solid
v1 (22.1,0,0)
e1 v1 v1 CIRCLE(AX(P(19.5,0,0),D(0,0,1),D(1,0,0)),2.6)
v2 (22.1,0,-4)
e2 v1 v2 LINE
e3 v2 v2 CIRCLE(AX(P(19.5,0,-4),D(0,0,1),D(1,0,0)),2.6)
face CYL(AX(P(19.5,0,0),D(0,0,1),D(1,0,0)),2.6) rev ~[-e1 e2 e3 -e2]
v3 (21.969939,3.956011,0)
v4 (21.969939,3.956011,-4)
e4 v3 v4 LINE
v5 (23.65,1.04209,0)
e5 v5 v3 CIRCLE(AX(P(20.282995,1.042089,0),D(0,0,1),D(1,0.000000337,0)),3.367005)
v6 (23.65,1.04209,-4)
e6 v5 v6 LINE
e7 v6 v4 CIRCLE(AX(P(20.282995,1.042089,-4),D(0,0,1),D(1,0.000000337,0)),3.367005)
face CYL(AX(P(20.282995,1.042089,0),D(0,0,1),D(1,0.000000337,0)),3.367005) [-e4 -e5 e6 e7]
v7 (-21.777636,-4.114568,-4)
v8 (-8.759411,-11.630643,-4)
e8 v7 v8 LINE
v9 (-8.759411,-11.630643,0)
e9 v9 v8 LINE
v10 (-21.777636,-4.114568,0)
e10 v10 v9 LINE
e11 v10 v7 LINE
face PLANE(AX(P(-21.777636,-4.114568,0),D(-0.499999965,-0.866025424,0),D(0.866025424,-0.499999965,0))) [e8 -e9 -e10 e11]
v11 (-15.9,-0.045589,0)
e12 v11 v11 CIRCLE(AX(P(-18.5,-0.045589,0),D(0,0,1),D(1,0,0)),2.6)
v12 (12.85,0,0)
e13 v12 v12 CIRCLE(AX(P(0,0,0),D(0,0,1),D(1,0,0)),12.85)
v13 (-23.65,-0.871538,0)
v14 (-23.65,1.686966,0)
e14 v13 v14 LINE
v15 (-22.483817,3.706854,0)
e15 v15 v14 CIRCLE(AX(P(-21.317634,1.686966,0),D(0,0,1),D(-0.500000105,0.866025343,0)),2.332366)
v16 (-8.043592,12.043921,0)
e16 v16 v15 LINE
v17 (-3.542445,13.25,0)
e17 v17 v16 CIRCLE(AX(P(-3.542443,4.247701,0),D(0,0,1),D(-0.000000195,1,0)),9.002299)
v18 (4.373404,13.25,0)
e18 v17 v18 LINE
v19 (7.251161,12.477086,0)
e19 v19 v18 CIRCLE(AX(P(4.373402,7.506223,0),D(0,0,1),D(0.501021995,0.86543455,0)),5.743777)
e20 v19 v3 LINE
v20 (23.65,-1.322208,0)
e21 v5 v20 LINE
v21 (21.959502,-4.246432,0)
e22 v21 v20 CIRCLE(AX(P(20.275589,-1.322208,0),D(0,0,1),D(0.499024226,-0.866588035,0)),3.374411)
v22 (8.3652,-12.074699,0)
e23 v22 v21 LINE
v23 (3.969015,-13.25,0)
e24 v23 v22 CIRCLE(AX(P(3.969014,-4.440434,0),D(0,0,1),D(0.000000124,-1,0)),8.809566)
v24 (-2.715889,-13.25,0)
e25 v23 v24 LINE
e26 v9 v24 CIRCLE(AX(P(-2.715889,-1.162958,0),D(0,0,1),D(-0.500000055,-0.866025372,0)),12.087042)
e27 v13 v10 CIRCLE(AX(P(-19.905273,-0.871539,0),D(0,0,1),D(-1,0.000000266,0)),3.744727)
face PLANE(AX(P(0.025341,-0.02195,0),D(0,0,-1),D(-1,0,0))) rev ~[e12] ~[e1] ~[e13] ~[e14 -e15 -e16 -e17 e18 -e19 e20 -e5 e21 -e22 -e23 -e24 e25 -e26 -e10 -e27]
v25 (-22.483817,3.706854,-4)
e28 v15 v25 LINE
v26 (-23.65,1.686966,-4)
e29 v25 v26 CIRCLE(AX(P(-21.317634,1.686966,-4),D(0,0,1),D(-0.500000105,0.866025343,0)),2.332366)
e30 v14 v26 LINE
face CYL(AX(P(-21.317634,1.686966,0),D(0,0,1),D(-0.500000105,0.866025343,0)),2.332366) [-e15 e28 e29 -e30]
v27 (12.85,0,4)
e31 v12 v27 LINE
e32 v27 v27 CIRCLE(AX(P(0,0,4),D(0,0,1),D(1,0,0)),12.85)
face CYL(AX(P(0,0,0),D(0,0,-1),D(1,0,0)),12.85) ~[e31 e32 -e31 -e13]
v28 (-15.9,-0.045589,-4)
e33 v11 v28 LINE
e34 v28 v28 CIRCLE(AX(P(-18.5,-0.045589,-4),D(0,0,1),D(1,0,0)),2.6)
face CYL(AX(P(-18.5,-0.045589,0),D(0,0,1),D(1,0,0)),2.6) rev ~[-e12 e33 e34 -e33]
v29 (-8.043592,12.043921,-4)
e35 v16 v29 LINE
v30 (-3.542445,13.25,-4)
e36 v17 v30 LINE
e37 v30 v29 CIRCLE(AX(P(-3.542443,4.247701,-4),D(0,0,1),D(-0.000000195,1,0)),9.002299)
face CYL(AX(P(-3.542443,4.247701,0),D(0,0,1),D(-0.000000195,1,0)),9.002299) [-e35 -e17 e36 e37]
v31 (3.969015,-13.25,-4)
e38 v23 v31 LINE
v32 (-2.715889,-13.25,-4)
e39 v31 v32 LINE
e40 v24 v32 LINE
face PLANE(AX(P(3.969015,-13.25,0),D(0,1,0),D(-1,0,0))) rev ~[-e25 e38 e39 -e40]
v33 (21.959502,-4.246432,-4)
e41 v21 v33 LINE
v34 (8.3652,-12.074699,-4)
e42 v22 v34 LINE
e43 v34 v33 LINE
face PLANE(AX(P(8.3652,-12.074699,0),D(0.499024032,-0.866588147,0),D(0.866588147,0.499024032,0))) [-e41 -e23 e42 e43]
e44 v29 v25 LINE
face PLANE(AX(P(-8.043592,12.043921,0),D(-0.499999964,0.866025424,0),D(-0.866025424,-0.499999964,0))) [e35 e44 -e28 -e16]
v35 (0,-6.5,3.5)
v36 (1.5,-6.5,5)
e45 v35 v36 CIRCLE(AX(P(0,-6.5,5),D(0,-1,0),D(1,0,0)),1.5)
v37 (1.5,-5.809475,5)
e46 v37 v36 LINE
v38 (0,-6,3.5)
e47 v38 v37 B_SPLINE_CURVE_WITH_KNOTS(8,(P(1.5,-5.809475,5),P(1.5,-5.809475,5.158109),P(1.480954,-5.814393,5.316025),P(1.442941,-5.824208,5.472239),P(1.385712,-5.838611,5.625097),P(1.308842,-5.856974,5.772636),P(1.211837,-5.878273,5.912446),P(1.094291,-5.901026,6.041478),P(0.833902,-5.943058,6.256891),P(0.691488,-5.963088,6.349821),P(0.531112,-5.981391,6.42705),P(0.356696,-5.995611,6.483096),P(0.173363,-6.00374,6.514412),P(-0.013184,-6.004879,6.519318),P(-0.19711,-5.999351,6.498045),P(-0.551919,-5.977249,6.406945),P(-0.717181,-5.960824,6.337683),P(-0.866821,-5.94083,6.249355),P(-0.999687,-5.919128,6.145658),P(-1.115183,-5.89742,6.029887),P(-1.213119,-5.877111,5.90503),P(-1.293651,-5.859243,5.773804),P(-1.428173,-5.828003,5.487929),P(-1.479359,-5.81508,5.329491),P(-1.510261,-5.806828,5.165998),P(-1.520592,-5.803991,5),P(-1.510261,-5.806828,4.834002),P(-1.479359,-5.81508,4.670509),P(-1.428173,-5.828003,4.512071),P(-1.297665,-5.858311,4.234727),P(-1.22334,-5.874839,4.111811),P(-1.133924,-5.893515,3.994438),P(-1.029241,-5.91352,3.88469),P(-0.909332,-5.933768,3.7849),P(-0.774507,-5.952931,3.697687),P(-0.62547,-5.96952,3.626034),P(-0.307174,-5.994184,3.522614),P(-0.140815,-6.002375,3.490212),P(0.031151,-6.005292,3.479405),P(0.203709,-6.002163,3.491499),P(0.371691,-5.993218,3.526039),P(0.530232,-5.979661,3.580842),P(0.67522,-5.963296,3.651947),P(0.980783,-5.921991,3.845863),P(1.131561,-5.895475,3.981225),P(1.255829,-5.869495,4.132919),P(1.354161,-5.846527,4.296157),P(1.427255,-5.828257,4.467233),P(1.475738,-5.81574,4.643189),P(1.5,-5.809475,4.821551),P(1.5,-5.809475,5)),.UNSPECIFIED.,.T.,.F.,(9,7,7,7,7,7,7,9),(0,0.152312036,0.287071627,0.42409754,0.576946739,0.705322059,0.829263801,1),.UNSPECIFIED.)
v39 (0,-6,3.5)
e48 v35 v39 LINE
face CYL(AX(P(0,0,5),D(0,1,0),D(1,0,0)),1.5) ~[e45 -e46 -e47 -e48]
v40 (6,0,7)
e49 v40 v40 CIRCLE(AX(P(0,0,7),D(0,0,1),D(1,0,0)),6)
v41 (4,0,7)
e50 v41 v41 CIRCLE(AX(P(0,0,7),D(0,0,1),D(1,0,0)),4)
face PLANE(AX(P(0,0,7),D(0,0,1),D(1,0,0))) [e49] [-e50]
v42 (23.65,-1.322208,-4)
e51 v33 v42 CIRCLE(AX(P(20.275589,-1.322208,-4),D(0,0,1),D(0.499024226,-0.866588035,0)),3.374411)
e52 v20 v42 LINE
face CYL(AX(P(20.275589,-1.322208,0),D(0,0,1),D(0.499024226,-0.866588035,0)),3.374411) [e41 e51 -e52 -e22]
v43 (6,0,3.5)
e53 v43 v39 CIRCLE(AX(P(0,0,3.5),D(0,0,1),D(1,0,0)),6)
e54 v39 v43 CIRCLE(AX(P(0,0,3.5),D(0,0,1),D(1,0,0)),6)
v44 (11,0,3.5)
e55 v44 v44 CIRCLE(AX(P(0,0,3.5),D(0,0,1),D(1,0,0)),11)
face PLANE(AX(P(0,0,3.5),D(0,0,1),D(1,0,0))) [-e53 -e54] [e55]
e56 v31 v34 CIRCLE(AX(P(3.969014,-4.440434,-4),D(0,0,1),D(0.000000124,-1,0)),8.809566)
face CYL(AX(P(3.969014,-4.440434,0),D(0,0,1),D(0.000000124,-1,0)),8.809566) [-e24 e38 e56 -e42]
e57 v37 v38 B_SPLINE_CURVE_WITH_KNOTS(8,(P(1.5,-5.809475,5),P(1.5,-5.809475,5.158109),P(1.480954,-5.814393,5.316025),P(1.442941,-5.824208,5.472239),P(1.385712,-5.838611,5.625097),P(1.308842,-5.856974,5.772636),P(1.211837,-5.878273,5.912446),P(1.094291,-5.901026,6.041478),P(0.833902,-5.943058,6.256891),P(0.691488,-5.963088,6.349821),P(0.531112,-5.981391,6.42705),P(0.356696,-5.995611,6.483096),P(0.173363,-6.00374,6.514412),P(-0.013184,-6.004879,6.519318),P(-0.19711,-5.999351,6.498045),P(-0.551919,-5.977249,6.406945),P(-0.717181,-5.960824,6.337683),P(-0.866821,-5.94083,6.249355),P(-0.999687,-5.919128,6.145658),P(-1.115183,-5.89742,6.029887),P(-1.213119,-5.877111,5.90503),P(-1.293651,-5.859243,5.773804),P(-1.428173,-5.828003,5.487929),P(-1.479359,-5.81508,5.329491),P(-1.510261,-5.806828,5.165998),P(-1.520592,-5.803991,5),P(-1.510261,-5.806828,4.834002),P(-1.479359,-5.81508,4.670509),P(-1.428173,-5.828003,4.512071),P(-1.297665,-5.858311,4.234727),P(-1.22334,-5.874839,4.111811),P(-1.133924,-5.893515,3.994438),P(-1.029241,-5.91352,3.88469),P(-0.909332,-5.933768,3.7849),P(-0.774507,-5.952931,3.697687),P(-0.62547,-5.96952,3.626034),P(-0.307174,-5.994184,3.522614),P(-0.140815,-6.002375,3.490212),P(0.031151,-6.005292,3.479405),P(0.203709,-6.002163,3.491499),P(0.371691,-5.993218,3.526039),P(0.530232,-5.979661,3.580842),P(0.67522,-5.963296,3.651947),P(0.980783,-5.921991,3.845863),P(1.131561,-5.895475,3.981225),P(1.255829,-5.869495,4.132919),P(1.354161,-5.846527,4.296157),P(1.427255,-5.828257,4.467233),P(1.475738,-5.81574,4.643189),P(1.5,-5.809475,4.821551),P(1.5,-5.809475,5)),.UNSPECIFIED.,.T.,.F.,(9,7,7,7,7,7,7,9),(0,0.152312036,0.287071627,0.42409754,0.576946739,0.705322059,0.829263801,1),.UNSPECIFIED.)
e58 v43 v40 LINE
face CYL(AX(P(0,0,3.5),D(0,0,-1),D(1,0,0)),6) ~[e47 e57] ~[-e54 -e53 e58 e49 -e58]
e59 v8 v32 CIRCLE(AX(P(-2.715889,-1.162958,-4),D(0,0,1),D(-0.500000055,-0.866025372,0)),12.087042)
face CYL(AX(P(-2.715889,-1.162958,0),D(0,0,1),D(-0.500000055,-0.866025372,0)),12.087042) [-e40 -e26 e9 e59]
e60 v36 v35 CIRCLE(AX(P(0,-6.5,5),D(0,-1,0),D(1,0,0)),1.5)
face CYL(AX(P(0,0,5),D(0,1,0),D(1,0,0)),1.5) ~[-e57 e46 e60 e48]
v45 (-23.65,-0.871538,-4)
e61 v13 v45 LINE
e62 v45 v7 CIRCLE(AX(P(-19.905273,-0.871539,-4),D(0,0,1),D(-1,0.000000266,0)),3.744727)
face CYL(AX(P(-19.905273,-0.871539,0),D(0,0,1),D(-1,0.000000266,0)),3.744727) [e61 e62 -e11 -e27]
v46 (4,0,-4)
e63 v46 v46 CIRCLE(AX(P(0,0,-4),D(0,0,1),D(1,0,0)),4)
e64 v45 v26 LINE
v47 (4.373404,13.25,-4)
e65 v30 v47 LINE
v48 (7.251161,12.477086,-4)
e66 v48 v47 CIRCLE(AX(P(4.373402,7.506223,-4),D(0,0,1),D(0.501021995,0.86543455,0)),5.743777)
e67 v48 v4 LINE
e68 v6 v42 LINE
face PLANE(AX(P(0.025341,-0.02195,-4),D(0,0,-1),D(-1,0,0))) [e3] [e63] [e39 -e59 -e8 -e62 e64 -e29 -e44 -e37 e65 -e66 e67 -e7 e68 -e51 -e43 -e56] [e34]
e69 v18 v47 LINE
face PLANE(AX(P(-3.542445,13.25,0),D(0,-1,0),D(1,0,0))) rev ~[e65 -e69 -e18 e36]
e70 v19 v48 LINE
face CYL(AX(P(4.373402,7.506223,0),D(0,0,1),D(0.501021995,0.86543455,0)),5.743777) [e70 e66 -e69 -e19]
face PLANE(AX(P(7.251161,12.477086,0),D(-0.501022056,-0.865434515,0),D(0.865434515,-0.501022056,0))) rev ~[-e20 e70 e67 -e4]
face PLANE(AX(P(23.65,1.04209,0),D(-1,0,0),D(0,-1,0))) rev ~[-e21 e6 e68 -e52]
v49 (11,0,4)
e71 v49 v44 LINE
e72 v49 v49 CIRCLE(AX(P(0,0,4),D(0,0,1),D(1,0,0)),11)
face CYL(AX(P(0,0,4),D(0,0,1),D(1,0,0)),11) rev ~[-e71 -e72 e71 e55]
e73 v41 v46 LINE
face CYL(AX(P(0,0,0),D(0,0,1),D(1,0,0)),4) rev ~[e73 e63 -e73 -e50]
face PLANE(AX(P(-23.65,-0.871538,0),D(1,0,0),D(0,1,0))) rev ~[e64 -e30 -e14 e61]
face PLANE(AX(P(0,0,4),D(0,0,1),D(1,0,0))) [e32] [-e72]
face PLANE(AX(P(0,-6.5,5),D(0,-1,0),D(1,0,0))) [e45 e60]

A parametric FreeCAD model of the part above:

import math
import FreeCAD as App
import Part
import Sketcher

V = App.Vector
Q = App.Units.Quantity

doc = App.newDocument("Part")
body = doc.addObject("PartDesign::Body", "Body")

# Sketch on XY plane
sketch1 = body.newObject("Sketcher::SketchObject", "Sketch")
sketch1.AttachmentSupport = (doc.getObject("XY_Plane"), [""])
sketch1.MapMode = "FlatFace"
sketch1.addGeometry(Part.Circle(V(0, 0, 0), V(0, 0, 1), 13), False)
sketch1.addConstraint(Sketcher.Constraint("Coincident", 0, 3, -1, 1))
sketch1.addConstraint(Sketcher.Constraint("Diameter", 0, Q("25.7 mm")))
pad1 = body.newObject("PartDesign::Pad", "Pad")
pad1.Profile = sketch1
pad1.Length = 4

# Sketch on XY plane
sketch2 = body.newObject("Sketcher::SketchObject", "Sketch001")
sketch2.AttachmentSupport = (doc.getObject("XY_Plane"), [""])
sketch2.MapMode = "FlatFace"
sketch2.AttachmentOffset = App.Placement(V(0, 0, 4), App.Rotation())
sketch2.addGeometry(Part.Circle(V(0, 0, 0), V(0, 0, 1), 11), False)
sketch2.addConstraint(Sketcher.Constraint("Coincident", 0, 3, -1, 1))
sketch2.addConstraint(Sketcher.Constraint("Diameter", 0, Q("22 mm")))
pocket1 = body.newObject("PartDesign::Pocket", "Pocket")
pocket1.Profile = sketch2
pocket1.Length = 0.5

# Sketch on XY plane
sketch3 = body.newObject("Sketcher::SketchObject", "Sketch002")
sketch3.AttachmentSupport = (doc.getObject("XY_Plane"), [""])
sketch3.MapMode = "FlatFace"
sketch3.AttachmentOffset = App.Placement(V(0, 0, 3.5), App.Rotation())
sketch3.addGeometry(Part.Circle(V(0, 0, 0), V(0, 0, 1), 6), False)
sketch3.addConstraint(Sketcher.Constraint("Coincident", 0, 3, -1, 1))
sketch3.addConstraint(Sketcher.Constraint("Diameter", 0, Q("12 mm")))
pad2 = body.newObject("PartDesign::Pad", "Pad001")
pad2.Profile = sketch3
pad2.Length = 3.5

# Sketch on XZ plane
sketch4 = body.newObject("Sketcher::SketchObject", "Sketch003")
sketch4.AttachmentSupport = (doc.getObject("XZ_Plane"), [""])
sketch4.MapMode = "FlatFace"
sketch4.addGeometry(Part.Circle(V(0, 5, 0), V(0, 0, 1), 1.5), False)
sketch4.addConstraint(Sketcher.Constraint("PointOnObject", 0, 3, -2))
sketch4.addConstraint(Sketcher.Constraint("Diameter", 0, Q("3 mm")))
sketch4.addConstraint(Sketcher.Constraint("DistanceY", -1, 1, 0, 3, Q("5 mm")))
pad3 = body.newObject("PartDesign::Pad", "Pad002")
pad3.Profile = sketch4
pad3.Length = 6.5

# Sketch on XY plane
sketch5 = body.newObject("Sketcher::SketchObject", "Sketch004")
sketch5.AttachmentSupport = (doc.getObject("XY_Plane"), [""])
sketch5.MapMode = "FlatFace"
sketch5.AttachmentOffset = App.Placement(V(0, 0, 7), App.Rotation())
sketch5.addGeometry(Part.Circle(V(0, 0, 0), V(0, 0, 1), 4), False)
sketch5.addConstraint(Sketcher.Constraint("Coincident", 0, 3, -1, 1))
sketch5.addConstraint(Sketcher.Constraint("Diameter", 0, Q("8 mm")))
pocket2 = body.newObject("PartDesign::Pocket", "Pocket001")
pocket2.Profile = sketch5
pocket2.Type = "ThroughAll"

# Sketch on XY plane
sketch6 = body.newObject("Sketcher::SketchObject", "Sketch005")
sketch6.AttachmentSupport = (doc.getObject("XY_Plane"), [""])
sketch6.MapMode = "FlatFace"
sketch6.addGeometry(Part.LineSegment(V(4.4, 13.2, 0), V(-3.5, 13.2, 0)), False)
sketch6.addGeometry(Part.ArcOfCircle(Part.Circle(V(-3.5, 4.2, 0), V(0, 0, 1), 9), math.radians(90), math.radians(120)), False)
sketch6.addGeometry(Part.LineSegment(V(-8, 12, 0), V(-22.5, 3.7, 0)), False)
sketch6.addGeometry(Part.ArcOfCircle(Part.Circle(V(-21.3, 1.7, 0), V(0, 0, 1), 2.3), math.radians(120), math.radians(180)), False)
sketch6.addGeometry(Part.LineSegment(V(-23.6, 1.7, 0), V(-23.6, -0.9, 0)), False)
sketch6.addGeometry(Part.ArcOfCircle(Part.Circle(V(-19.9, -0.9, 0), V(0, 0, 1), 3.7), math.radians(180), math.radians(240)), False)
sketch6.addGeometry(Part.LineSegment(V(-21.8, -4.1, 0), V(-8.8, -11.6, 0)), False)
sketch6.addGeometry(Part.ArcOfCircle(Part.Circle(V(-2.7, -1.2, 0), V(0, 0, 1), 12.1), math.radians(-120), math.radians(-90)), False)
sketch6.addGeometry(Part.LineSegment(V(-2.7, -13.2, 0), V(4, -13.2, 0)), False)
sketch6.addGeometry(Part.ArcOfCircle(Part.Circle(V(4, -4.4, 0), V(0, 0, 1), 8.8), math.radians(-90), math.radians(-60)), False)
sketch6.addGeometry(Part.LineSegment(V(8.4, -12.1, 0), V(22, -4.2, 0)), False)
sketch6.addGeometry(Part.ArcOfCircle(Part.Circle(V(20.3, -1.3, 0), V(0, 0, 1), 3.4), math.radians(-60), math.radians(0)), False)
sketch6.addGeometry(Part.LineSegment(V(23.6, -1.3, 0), V(23.6, 1, 0)), False)
sketch6.addGeometry(Part.ArcOfCircle(Part.Circle(V(20.3, 1, 0), V(0, 0, 1), 3.4), math.radians(0), math.radians(60)), False)
sketch6.addGeometry(Part.LineSegment(V(22, 4, 0), V(7.3, 12.5, 0)), False)
sketch6.addGeometry(Part.ArcOfCircle(Part.Circle(V(4.4, 7.5, 0), V(0, 0, 1), 5.7), math.radians(60), math.radians(90)), False)
sketch6.addGeometry(Part.Circle(V(-18.5, 0, 0), V(0, 0, 1), 2.6), False)
sketch6.addGeometry(Part.Circle(V(19.5, 0, 0), V(0, 0, 1), 2.6), False)
sketch6.addConstraint(Sketcher.Constraint("Tangent", 0, 2, 1, 1))
sketch6.addConstraint(Sketcher.Constraint("Tangent", 1, 2, 2, 1))
sketch6.addConstraint(Sketcher.Constraint("Tangent", 2, 2, 3, 1))
sketch6.addConstraint(Sketcher.Constraint("Tangent", 3, 2, 4, 1))
sketch6.addConstraint(Sketcher.Constraint("Tangent", 4, 2, 5, 1))
sketch6.addConstraint(Sketcher.Constraint("Tangent", 5, 2, 6, 1))
sketch6.addConstraint(Sketcher.Constraint("Tangent", 6, 2, 7, 1))
sketch6.addConstraint(Sketcher.Constraint("Tangent", 7, 2, 8, 1))
sketch6.addConstraint(Sketcher.Constraint("Tangent", 8, 2, 9, 1))
sketch6.addConstraint(Sketcher.Constraint("Tangent", 9, 2, 10, 1))
sketch6.addConstraint(Sketcher.Constraint("Tangent", 10, 2, 11, 1))
sketch6.addConstraint(Sketcher.Constraint("Tangent", 11, 2, 12, 1))
sketch6.addConstraint(Sketcher.Constraint("Tangent", 12, 2, 13, 1))
sketch6.addConstraint(Sketcher.Constraint("Tangent", 13, 2, 14, 1))
sketch6.addConstraint(Sketcher.Constraint("Tangent", 14, 2, 15, 1))
sketch6.addConstraint(Sketcher.Constraint("Tangent", 15, 2, 0, 1))
sketch6.addConstraint(Sketcher.Constraint("Horizontal", 0))
sketch6.addConstraint(Sketcher.Constraint("Vertical", 4))
sketch6.addConstraint(Sketcher.Constraint("Horizontal", 8))
sketch6.addConstraint(Sketcher.Constraint("Vertical", 12))
sketch6.addConstraint(Sketcher.Constraint("Equal", 16, 17))
sketch6.addConstraint(Sketcher.Constraint("PointOnObject", 17, 3, -1))
sketch6.addConstraint(Sketcher.Constraint("Diameter", 16, Q("5.2 mm")))
sketch6.addConstraint(Sketcher.Constraint("Angle", 2, Q("-150.000002 deg")))
sketch6.addConstraint(Sketcher.Constraint("Angle", 6, Q("-29.999998 deg")))
sketch6.addConstraint(Sketcher.Constraint("DistanceX", 16, 3, -1, 1, Q("18.5 mm")))
sketch6.addConstraint(Sketcher.Constraint("DistanceX", -1, 1, 17, 3, Q("19.5 mm")))
sketch6.addConstraint(Sketcher.Constraint("Radius", 1, Q("9.002299 mm")))
sketch6.addConstraint(Sketcher.Constraint("DistanceY", -1, 1, 0, 2, Q("13.25 mm")))
sketch6.addConstraint(Sketcher.Constraint("DistanceX", 3, 2, -1, 1, Q("23.65 mm")))
sketch6.addConstraint(Sketcher.Constraint("DistanceY", 7, 2, -1, 1, Q("13.25 mm")))
sketch6.addConstraint(Sketcher.Constraint("DistanceX", -1, 1, 11, 2, Q("23.65 mm")))
sketch6.addConstraint(Sketcher.Constraint("Radius", 11, Q("3.374411 mm")))
sketch6.addConstraint(Sketcher.Constraint("Radius", 3, Q("2.332366 mm")))
sketch6.addConstraint(Sketcher.Constraint("Radius", 5, Q("3.744727 mm")))
sketch6.addConstraint(Sketcher.Constraint("Radius", 7, Q("12.087042 mm")))
sketch6.addConstraint(Sketcher.Constraint("Radius", 9, Q("8.809566 mm")))
sketch6.addConstraint(Sketcher.Constraint("Radius", 13, Q("3.367005 mm")))
sketch6.addConstraint(Sketcher.Constraint("Radius", 15, Q("5.743777 mm")))
sketch6.addConstraint(Sketcher.Constraint("DistanceY", 9, 3, 10, 2, Q("0.194002 mm")))
sketch6.addConstraint(Sketcher.Constraint("DistanceX", 0, 2, 0, 1, Q("7.915849 mm")))
sketch6.addConstraint(Sketcher.Constraint("DistanceX", -1, 1, 9, 2, Q("8.3652 mm")))
sketch6.addConstraint(Sketcher.Constraint("DistanceY", 9, 3, 3, 3, Q("6.127399 mm")))
sketch6.addConstraint(Sketcher.Constraint("DistanceY", 11, 3, 12, 2, Q("2.364298 mm")))
sketch6.addConstraint(Sketcher.Constraint("Distance", 6, Q("15.032151 mm")))
sketch6.addConstraint(Sketcher.Constraint("DistanceY", 16, 3, -1, 1, Q("0.045589 mm")))
pad4 = body.newObject("PartDesign::Pad", "Pad003")
pad4.Profile = sketch6
pad4.Length = 4
pad4.Reversed = True

# Sketch on XY plane
sketch7 = body.newObject("Sketcher::SketchObject", "Sketch006")
sketch7.AttachmentSupport = (doc.getObject("XY_Plane"), [""])
sketch7.MapMode = "FlatFace"
sketch7.addGeometry(Part.Circle(V(0, 0, 0), V(0, 0, 1), 4), False)
sketch7.addConstraint(Sketcher.Constraint("Coincident", 0, 3, -1, 1))
sketch7.addConstraint(Sketcher.Constraint("Diameter", 0, Q("8 mm")))
pocket3 = body.newObject("PartDesign::Pocket", "Pocket002")
pocket3.Profile = sketch7
pocket3.Length = 4

doc.recompute()
